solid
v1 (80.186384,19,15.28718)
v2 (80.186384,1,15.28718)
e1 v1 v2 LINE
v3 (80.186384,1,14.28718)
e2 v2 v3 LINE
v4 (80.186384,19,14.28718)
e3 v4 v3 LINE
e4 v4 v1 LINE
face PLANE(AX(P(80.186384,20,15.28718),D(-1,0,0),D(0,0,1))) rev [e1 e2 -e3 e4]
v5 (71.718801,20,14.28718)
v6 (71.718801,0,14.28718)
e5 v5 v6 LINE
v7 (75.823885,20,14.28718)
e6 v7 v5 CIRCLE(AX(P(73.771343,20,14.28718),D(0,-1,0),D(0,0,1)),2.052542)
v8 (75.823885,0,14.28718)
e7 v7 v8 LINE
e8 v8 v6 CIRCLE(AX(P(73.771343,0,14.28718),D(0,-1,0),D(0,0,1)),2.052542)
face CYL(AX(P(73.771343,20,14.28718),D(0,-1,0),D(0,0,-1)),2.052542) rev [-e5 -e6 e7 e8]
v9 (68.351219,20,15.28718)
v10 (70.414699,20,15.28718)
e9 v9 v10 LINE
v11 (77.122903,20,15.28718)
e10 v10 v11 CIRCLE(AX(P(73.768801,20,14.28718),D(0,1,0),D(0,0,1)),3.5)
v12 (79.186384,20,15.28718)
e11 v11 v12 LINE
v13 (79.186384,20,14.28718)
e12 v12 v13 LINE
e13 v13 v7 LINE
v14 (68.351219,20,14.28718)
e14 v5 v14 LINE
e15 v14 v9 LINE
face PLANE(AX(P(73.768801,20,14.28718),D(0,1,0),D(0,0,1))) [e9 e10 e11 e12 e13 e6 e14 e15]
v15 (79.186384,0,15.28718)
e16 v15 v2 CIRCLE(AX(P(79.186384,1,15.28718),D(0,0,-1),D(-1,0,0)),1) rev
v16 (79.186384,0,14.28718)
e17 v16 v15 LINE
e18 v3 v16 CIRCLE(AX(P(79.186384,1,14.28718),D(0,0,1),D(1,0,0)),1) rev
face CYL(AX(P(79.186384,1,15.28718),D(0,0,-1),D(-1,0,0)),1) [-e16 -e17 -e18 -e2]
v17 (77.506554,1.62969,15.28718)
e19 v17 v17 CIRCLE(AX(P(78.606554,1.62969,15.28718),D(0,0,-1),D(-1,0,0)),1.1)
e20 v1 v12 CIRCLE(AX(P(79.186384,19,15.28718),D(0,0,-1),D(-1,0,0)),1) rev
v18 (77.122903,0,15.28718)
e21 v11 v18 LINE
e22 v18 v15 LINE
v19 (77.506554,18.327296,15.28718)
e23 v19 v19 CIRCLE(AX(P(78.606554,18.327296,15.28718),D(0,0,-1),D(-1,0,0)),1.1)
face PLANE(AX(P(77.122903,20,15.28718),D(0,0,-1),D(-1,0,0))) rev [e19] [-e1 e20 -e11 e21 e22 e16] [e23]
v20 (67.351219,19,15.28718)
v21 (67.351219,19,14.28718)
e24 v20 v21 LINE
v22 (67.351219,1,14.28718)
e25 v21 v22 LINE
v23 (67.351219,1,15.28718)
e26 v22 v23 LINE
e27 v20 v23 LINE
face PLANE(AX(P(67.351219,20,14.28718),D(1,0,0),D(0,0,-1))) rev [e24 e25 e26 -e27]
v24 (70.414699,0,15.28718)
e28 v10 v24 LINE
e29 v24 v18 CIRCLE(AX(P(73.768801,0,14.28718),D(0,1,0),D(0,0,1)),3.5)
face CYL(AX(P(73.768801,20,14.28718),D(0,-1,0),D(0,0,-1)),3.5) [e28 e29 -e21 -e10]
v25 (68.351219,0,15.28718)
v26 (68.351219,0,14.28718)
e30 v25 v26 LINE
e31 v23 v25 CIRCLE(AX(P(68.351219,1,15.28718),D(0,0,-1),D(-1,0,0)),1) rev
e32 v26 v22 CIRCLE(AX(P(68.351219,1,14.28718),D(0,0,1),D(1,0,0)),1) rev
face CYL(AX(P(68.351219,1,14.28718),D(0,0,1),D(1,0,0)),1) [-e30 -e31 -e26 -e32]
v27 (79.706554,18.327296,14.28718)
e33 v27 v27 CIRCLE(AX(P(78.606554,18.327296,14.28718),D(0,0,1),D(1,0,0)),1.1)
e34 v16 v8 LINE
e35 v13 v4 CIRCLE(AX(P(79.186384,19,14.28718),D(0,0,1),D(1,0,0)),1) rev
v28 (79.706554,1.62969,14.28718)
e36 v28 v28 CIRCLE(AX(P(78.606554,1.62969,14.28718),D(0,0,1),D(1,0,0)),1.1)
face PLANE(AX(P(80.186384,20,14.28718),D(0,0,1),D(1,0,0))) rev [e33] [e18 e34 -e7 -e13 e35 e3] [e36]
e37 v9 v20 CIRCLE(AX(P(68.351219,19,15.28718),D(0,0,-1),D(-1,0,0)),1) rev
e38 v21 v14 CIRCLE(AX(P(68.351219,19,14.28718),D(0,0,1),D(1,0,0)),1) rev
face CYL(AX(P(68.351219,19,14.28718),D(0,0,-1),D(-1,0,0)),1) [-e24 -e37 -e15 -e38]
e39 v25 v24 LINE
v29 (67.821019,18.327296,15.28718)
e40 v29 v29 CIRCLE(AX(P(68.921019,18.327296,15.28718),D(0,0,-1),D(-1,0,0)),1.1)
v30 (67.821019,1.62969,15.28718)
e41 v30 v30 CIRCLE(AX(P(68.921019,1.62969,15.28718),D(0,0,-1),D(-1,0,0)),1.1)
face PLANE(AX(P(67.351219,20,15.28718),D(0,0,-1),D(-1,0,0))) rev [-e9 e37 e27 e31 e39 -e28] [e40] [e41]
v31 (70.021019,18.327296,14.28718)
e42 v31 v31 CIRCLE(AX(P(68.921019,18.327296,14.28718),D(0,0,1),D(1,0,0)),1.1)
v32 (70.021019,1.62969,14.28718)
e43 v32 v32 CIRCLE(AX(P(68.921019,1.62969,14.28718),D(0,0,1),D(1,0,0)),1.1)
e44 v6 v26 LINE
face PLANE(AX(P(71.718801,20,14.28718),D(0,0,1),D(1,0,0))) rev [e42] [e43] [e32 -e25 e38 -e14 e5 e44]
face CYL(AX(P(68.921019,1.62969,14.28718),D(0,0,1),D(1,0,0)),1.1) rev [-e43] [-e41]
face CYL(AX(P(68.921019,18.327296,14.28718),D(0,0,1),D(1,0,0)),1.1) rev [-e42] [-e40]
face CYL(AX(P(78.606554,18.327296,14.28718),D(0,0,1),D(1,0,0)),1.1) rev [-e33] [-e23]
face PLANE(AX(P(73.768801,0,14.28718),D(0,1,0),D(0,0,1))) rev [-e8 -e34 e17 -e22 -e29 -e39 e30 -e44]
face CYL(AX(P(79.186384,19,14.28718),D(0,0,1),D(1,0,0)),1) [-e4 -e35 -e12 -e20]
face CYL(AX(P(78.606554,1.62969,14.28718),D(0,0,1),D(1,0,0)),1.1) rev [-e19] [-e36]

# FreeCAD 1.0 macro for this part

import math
import FreeCAD as App
import Part
import Sketcher

V = App.Vector
Q = App.Units.Quantity


def edges_at(feature, points):
    """Names of the edges that pass closest to the given points."""
    edges = feature.Shape.Edges
    near = lambda p: min(range(len(edges)), key=lambda i: edges[i].distToShape(Part.Vertex(*p))[0])
    return sorted({f"Edge{near(p) + 1}" for p in points})

doc = App.newDocument("Part")
params = doc.addObject("Spreadsheet::Sheet", "Params")
for row, (alias, value) in enumerate([
    ("sketch1_radius", "3.5 mm"),
    ("sketch1_height", "1 mm"),
    ("pad1_length", "20 mm"),
    ("sketch2_diameter", "2.2 mm"),
    ("fillet_radius", "1 mm"),
], start=1):
    params.set(f"A{row}", alias)
    params.set(f"B{row}", "=" + value)
    params.setAlias(f"B{row}", alias)

body = doc.addObject("PartDesign::Body", "Body")

sketch1 = doc.addObject("Sketcher::SketchObject", "Sketch")
body.addObject(sketch1)
sketch1.AttachmentSupport = (doc.XZ_Plane, [""])
sketch1.MapMode = "FlatFace"
sketch1.addGeometry([
    Part.LineSegment(V(67.4, 14.3, 0), V(67.4, 15.3, 0)),
    Part.LineSegment(V(67.4, 15.3, 0), V(70.4, 15.3, 0)),
    Part.ArcOfCircle(Part.Circle(V(73.8, 14.3, 0), V(0, 0, 1), 3.5), math.radians(17), math.radians(163)),
    Part.LineSegment(V(77.1, 15.3, 0), V(80.2, 15.3, 0)),
    Part.LineSegment(V(80.2, 15.3, 0), V(80.2, 14.3, 0)),
    Part.LineSegment(V(80.2, 14.3, 0), V(75.8, 14.3, 0)),
    Part.ArcOfCircle(Part.Circle(V(73.8, 14.3, 0), V(0, 0, 1), 2.1), math.radians(0), math.radians(180)),
    Part.LineSegment(V(71.7, 14.3, 0), V(67.4, 14.3, 0)),
], False)
sketch1.addConstraint([
    Sketcher.Constraint("Coincident", 0, 2, 1, 1),
    Sketcher.Constraint("Coincident", 1, 2, 2, 2),
    Sketcher.Constraint("Coincident", 2, 1, 3, 1),
    Sketcher.Constraint("Coincident", 3, 2, 4, 1),
    Sketcher.Constraint("Coincident", 4, 2, 5, 1),
    Sketcher.Constraint("Coincident", 5, 2, 6, 1),
    Sketcher.Constraint("Coincident", 6, 2, 7, 1),
    Sketcher.Constraint("Coincident", 7, 2, 0, 1),
    Sketcher.Constraint("Vertical", 0),
    Sketcher.Constraint("Horizontal", 1),
    Sketcher.Constraint("Horizontal", 3),
    Sketcher.Constraint("Vertical", 4),
    Sketcher.Constraint("Horizontal", 5),
    Sketcher.Constraint("Horizontal", 7),
    Sketcher.Constraint("Horizontal", 2, 3, 6, 3),
    Sketcher.Constraint("Horizontal", 1, 2, 2, 1),
    Sketcher.Constraint("Horizontal", 6, 3, 4, 2),
    Sketcher.Constraint("Horizontal", 5, 2, 6, 2),
    Sketcher.Constraint("Equal", 1, 3),
    Sketcher.Constraint("Radius", 2, Q("3.5 mm")),
    Sketcher.Constraint("DistanceY", 0, 1, 0, 2, Q("1 mm")),
    Sketcher.Constraint("Radius", 6, Q("2.052542 mm")),
    Sketcher.Constraint("DistanceX", 6, 2, 2, 3, Q("2.05 mm")),
    Sketcher.Constraint("DistanceX", 5, 2, 5, 1, Q("4.362499 mm")),
    Sketcher.Constraint("DistanceX", -1, 1, 2, 3, Q("73.768801 mm")),
    Sketcher.Constraint("DistanceY", -1, 1, 2, 3, Q("14.28718 mm")),
])
sketch1.setExpression("Constraints[19]", "Params.sketch1_radius")
sketch1.setExpression("Constraints[20]", "Params.sketch1_height")
pad1 = doc.addObject("PartDesign::Pad", "Pad")
body.addObject(pad1)
pad1.Profile = sketch1
pad1.setExpression("Length", "Params.pad1_length")
pad1.Reversed = True

sketch2 = doc.addObject("Sketcher::SketchObject", "Sketch001")
body.addObject(sketch2)
sketch2.AttachmentSupport = (doc.XY_Plane, [""])
sketch2.MapMode = "FlatFace"
sketch2.AttachmentOffset = App.Placement(V(0, 0, 15.28718), App.Rotation())
sketch2.addGeometry([
    Part.Circle(V(68.9, 18.3, 0), V(0, 0, 1), 1.1),
    Part.Circle(V(68.9, 1.6, 0), V(0, 0, 1), 1.1),
    Part.Circle(V(78.6, 18.3, 0), V(0, 0, 1), 1.1),
    Part.Circle(V(78.6, 1.6, 0), V(0, 0, 1), 1.1),
], False)
sketch2.addConstraint([
    Sketcher.Constraint("Equal", 0, 1),
    Sketcher.Constraint("Equal", 1, 2),
    Sketcher.Constraint("Equal", 2, 3),
    Sketcher.Constraint("Horizontal", 0, 3, 2, 3),
    Sketcher.Constraint("Horizontal", 1, 3, 3, 3),
    Sketcher.Constraint("Vertical", 0, 3, 1, 3),
    Sketcher.Constraint("Vertical", 2, 3, 3, 3),
    Sketcher.Constraint("Diameter", 0, Q("2.2 mm")),
    Sketcher.Constraint("DistanceX", -1, 1, 0, 3, Q("68.921019 mm")),
    Sketcher.Constraint("DistanceY", -1, 1, 1, 3, Q("1.62969 mm")),
    Sketcher.Constraint("DistanceY", -1, 1, 0, 3, Q("18.327296 mm")),
    Sketcher.Constraint("DistanceX", -1, 1, 2, 3, Q("78.606554 mm")),
])
sketch2.setExpression("Constraints[7]", "Params.sketch2_diameter")
pocket1 = doc.addObject("PartDesign::Pocket", "Pocket")
body.addObject(pocket1)
pocket1.Profile = sketch2
pocket1.Type = "ThroughAll"
pocket1.Midplane = True
doc.recompute()

fillet = doc.addObject("PartDesign::Fillet", "Fillet")
body.addObject(fillet)
fillet.Base = (pocket1, edges_at(pocket1, [
    (80.186, 20, 14.787),
    (67.351, 20, 14.787),
    (67.351, 0, 14.787),
    (80.186, 0, 14.787),
]))
fillet.setExpression("Radius", "Params.fillet_radius")

doc.recompute()
